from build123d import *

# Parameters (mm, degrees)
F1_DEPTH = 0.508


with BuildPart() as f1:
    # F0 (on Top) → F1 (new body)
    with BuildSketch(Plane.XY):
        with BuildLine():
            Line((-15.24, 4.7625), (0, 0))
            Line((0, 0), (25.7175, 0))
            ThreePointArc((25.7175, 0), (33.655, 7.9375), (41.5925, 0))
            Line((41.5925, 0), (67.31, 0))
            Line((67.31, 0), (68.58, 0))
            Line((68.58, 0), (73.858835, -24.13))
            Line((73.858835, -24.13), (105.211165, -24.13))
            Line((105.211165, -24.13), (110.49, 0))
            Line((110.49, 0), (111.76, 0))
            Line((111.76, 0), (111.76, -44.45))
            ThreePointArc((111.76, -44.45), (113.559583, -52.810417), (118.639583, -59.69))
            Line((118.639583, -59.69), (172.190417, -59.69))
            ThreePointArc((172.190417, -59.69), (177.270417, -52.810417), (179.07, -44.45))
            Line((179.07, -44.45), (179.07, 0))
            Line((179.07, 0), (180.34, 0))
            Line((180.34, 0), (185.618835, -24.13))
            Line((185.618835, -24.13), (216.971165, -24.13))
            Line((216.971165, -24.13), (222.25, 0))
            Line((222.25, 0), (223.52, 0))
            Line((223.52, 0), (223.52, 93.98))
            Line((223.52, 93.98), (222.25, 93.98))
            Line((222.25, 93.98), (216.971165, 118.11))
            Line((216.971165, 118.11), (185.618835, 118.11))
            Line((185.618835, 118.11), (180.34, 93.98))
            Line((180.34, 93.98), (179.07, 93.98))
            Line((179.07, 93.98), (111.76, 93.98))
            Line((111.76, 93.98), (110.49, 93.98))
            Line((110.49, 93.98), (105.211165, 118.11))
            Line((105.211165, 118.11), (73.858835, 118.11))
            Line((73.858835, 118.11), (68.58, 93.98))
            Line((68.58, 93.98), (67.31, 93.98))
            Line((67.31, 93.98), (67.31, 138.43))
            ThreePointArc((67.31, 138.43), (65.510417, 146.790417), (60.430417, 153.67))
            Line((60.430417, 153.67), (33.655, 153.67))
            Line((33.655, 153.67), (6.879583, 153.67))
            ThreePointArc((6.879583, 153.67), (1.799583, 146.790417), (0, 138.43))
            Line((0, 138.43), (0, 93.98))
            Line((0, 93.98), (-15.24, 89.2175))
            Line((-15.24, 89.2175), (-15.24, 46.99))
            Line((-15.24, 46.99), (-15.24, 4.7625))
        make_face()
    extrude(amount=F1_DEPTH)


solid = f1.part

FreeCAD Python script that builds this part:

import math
import FreeCAD as App
import Part
import Sketcher

V = App.Vector
Q = App.Units.Quantity

doc = App.newDocument("Part")
body = doc.addObject("PartDesign::Body", "Body")

# Sketch on XY plane
sketch1 = doc.addObject("Sketcher::SketchObject", "Sketch")
body.addObject(sketch1)
sketch1.AttachmentSupport = (doc.XY_Plane, [""])
sketch1.MapMode = "FlatFace"
sketch1.addGeometry([
    Part.LineSegment(V(-15.2, 4.8, 0), V(0, 0, 0)),  # 0
    Part.LineSegment(V(0, 0, 0), V(25.7, 0, 0)),  # 1
    Part.ArcOfCircle(Part.Circle(V(33.7, 0, 0), V(0, 0, 1), 7.9), math.radians(0), math.radians(180)),  # 2
    Part.LineSegment(V(41.6, 0, 0), V(68.6, 0, 0)),  # 3
    Part.LineSegment(V(68.6, 0, 0), V(73.9, -24.1, 0)),  # 4
    Part.LineSegment(V(73.9, -24.1, 0), V(105.2, -24.1, 0)),  # 5
    Part.LineSegment(V(105.2, -24.1, 0), V(110.5, 0, 0)),  # 6
    Part.LineSegment(V(110.5, 0, 0), V(111.8, 0, 0)),  # 7
    Part.LineSegment(V(111.8, 0, 0), V(111.8, -44.5, 0)),  # 8
    Part.ArcOfCircle(Part.Circle(V(132.1, -44.5, 0), V(0, 0, 1), 20.3), math.radians(180), math.radians(229)),  # 9
    Part.LineSegment(V(118.6, -59.7, 0), V(172.2, -59.7, 0)),  # 10
    Part.ArcOfCircle(Part.Circle(V(158.8, -44.5, 0), V(0, 0, 1), 20.3), math.radians(-49), math.radians(0)),  # 11
    Part.LineSegment(V(179.1, -44.5, 0), V(179.1, 0, 0)),  # 12
    Part.LineSegment(V(179.1, 0, 0), V(180.3, 0, 0)),  # 13
    Part.LineSegment(V(180.3, 0, 0), V(185.6, -24.1, 0)),  # 14
    Part.LineSegment(V(185.6, -24.1, 0), V(217, -24.1, 0)),  # 15
    Part.LineSegment(V(217, -24.1, 0), V(222.2, 0, 0)),  # 16
    Part.LineSegment(V(222.2, 0, 0), V(223.5, 0, 0)),  # 17
    Part.LineSegment(V(223.5, 0, 0), V(223.5, 94, 0)),  # 18
    Part.LineSegment(V(223.5, 94, 0), V(222.2, 94, 0)),  # 19
    Part.LineSegment(V(222.2, 94, 0), V(217, 118.1, 0)),  # 20
    Part.LineSegment(V(217, 118.1, 0), V(185.6, 118.1, 0)),  # 21
    Part.LineSegment(V(185.6, 118.1, 0), V(180.3, 94, 0)),  # 22
    Part.LineSegment(V(180.3, 94, 0), V(110.5, 94, 0)),  # 23
    Part.LineSegment(V(110.5, 94, 0), V(105.2, 118.1, 0)),  # 24
    Part.LineSegment(V(105.2, 118.1, 0), V(73.9, 118.1, 0)),  # 25
    Part.LineSegment(V(73.9, 118.1, 0), V(68.6, 94, 0)),  # 26
    Part.LineSegment(V(68.6, 94, 0), V(67.3, 94, 0)),  # 27
    Part.LineSegment(V(67.3, 94, 0), V(67.3, 138.4, 0)),  # 28
    Part.ArcOfCircle(Part.Circle(V(47, 138.4, 0), V(0, 0, 1), 20.3), math.radians(0), math.radians(49)),  # 29
    Part.LineSegment(V(60.4, 153.7, 0), V(6.9, 153.7, 0)),  # 30
    Part.ArcOfCircle(Part.Circle(V(20.3, 138.4, 0), V(0, 0, 1), 20.3), math.radians(131), math.radians(180)),  # 31
    Part.LineSegment(V(0, 138.4, 0), V(0, 94, 0)),  # 32
    Part.LineSegment(V(0, 94, 0), V(-15.2, 89.2, 0)),  # 33
    Part.LineSegment(V(-15.2, 89.2, 0), V(-15.2, 4.8, 0)),  # 34
], False)
sketch1.addConstraint([
    Sketcher.Constraint("Coincident", 0, 2, 1, 1),
    Sketcher.Constraint("Coincident", 1, 2, 2, 2),
    Sketcher.Constraint("Coincident", 2, 1, 3, 1),
    Sketcher.Constraint("Coincident", 3, 2, 4, 1),
    Sketcher.Constraint("Coincident", 4, 2, 5, 1),
    Sketcher.Constraint("Coincident", 5, 2, 6, 1),
    Sketcher.Constraint("Coincident", 6, 2, 7, 1),
    Sketcher.Constraint("Coincident", 7, 2, 8, 1),
    Sketcher.Constraint("Tangent", 8, 2, 9, 1),
    Sketcher.Constraint("Coincident", 9, 2, 10, 1),
    Sketcher.Constraint("Coincident", 10, 2, 11, 1),
    Sketcher.Constraint("Tangent", 11, 2, 12, 1),
    Sketcher.Constraint("Coincident", 12, 2, 13, 1),
    Sketcher.Constraint("Coincident", 13, 2, 14, 1),
    Sketcher.Constraint("Coincident", 14, 2, 15, 1),
    Sketcher.Constraint("Coincident", 15, 2, 16, 1),
    Sketcher.Constraint("Coincident", 16, 2, 17, 1),
    Sketcher.Constraint("Coincident", 17, 2, 18, 1),
    Sketcher.Constraint("Coincident", 18, 2, 19, 1),
    Sketcher.Constraint("Coincident", 19, 2, 20, 1),
    Sketcher.Constraint("Coincident", 20, 2, 21, 1),
    Sketcher.Constraint("Coincident", 21, 2, 22, 1),
    Sketcher.Constraint("Coincident", 22, 2, 23, 1),
    Sketcher.Constraint("Coincident", 23, 2, 24, 1),
    Sketcher.Constraint("Coincident", 24, 2, 25, 1),
    Sketcher.Constraint("Coincident", 25, 2, 26, 1),
    Sketcher.Constraint("Coincident", 26, 2, 27, 1),
    Sketcher.Constraint("Coincident", 27, 2, 28, 1),
    Sketcher.Constraint("Tangent", 28, 2, 29, 1),
    Sketcher.Constraint("Coincident", 29, 2, 30, 1),
    Sketcher.Constraint("Coincident", 30, 2, 31, 1),
    Sketcher.Constraint("Tangent", 31, 2, 32, 1),
    Sketcher.Constraint("Coincident", 32, 2, 33, 1),
    Sketcher.Constraint("Coincident", 33, 2, 34, 1),
    Sketcher.Constraint("Coincident", 34, 2, 0, 1),
    Sketcher.Constraint("Horizontal", 1),
    Sketcher.Constraint("Horizontal", 3),
    Sketcher.Constraint("Horizontal", 5),
    Sketcher.Constraint("Horizontal", 7),
    Sketcher.Constraint("Vertical", 8),
    Sketcher.Constraint("Horizontal", 10),
    Sketcher.Constraint("Vertical", 12),
    Sketcher.Constraint("Horizontal", 13),
    Sketcher.Constraint("Horizontal", 15),
    Sketcher.Constraint("Horizontal", 17),
    Sketcher.Constraint("Vertical", 18),
    Sketcher.Constraint("Horizontal", 19),
    Sketcher.Constraint("Horizontal", 21),
    Sketcher.Constraint("Horizontal", 23),
    Sketcher.Constraint("Horizontal", 25),
    Sketcher.Constraint("Horizontal", 27),
    Sketcher.Constraint("Vertical", 28),
    Sketcher.Constraint("Horizontal", 30),
    Sketcher.Constraint("Vertical", 32),
    Sketcher.Constraint("Vertical", 34),
    Sketcher.Constraint("Coincident", 0, 2, -1, 1),
    Sketcher.Constraint("Equal", 9, 11),
    Sketcher.Constraint("Equal", 11, 29),
    Sketcher.Constraint("Equal", 29, 31),
    Sketcher.Constraint("PointOnObject", 2, 3, -1),
    Sketcher.Constraint("PointOnObject", 2, 1, -1),
    Sketcher.Constraint("PointOnObject", 6, 2, -1),
    Sketcher.Constraint("PointOnObject", 12, 2, -1),
    Sketcher.Constraint("PointOnObject", 16, 2, -1),
    Sketcher.Constraint("PointOnObject", 31, 2, -2),
    Sketcher.Constraint("Parallel", 4, 14),
    Sketcher.Constraint("Parallel", 6, 16),
    Sketcher.Constraint("Parallel", 14, 20),
    Sketcher.Constraint("Parallel", 16, 22),
    Sketcher.Constraint("Parallel", 20, 24),
    Sketcher.Constraint("Parallel", 22, 26),
    Sketcher.Constraint("Horizontal", 9, 3, 11, 3),
    Sketcher.Constraint("Horizontal", 29, 3, 31, 3),
    Sketcher.Constraint("Horizontal", 5, 2, 14, 2),
    Sketcher.Constraint("Horizontal", 19, 2, 22, 2),
    Sketcher.Constraint("Horizontal", 21, 2, 24, 2),
    Sketcher.Constraint("Horizontal", 23, 2, 26, 2),
    Sketcher.Constraint("Horizontal", 27, 2, 32, 2),
    Sketcher.Constraint("Vertical", 16, 2, 19, 2),
    Sketcher.Constraint("Vertical", 15, 2, 20, 2),
    Sketcher.Constraint("Vertical", 14, 2, 21, 2),
    Sketcher.Constraint("Vertical", 13, 2, 22, 2),
    Sketcher.Constraint("Vertical", 6, 2, 23, 2),
    Sketcher.Constraint("Vertical", 4, 2, 25, 2),
    Sketcher.Constraint("Equal", 7, 13),
    Sketcher.Constraint("Equal", 5, 15),
    Sketcher.Constraint("Equal", 13, 17),
    Sketcher.Constraint("Equal", 19, 27),
    Sketcher.Constraint("Equal", 10, 30),
    Sketcher.Constraint("Equal", 12, 28),
    Sketcher.Constraint("Equal", 0, 33),
    Sketcher.Constraint("Radius", 9, Q("0.7999999 in")),
    Sketcher.Constraint("DistanceY", 18, 1, 18, 2, Q("3.7 in")),
    Sketcher.Constraint("Radius", 2, Q("0.3125 in")),
    Sketcher.Constraint("DistanceX", 7, 1, 7, 2, Q("0.05 in")),
    Sketcher.Constraint("DistanceX", 23, 2, 23, 1, Q("2.75 in")),
    Sketcher.Constraint("DistanceY", 8, 2, 8, 1, Q("1.75 in")),
    Sketcher.Constraint("DistanceX", -1, 1, 9, 3, Q("5.1999999 in")),
    Sketcher.Constraint("DistanceX", -1, 1, 3, 2, Q("2.7 in")),
    Sketcher.Constraint("DistanceX", 33, 2, -1, 1, Q("0.6 in")),
    Sketcher.Constraint("DistanceY", 9, 3, 4, 2, Q("0.8000001 in")),
    Sketcher.Constraint("DistanceY", 9, 2, 8, 2, Q("0.6 in")),
    Sketcher.Constraint("DistanceX", 3, 1, 3, 2, Q("1.0625 in")),
    Sketcher.Constraint("DistanceY", 34, 2, 34, 1, Q("3.325 in")),
    Sketcher.Constraint("Angle", 4, Q("-77.660012 deg")),
])
pad1 = doc.addObject("PartDesign::Pad", "Pad")
body.addObject(pad1)
pad1.Profile = sketch1
pad1.Length = Q("0.02 in")

doc.recompute()
